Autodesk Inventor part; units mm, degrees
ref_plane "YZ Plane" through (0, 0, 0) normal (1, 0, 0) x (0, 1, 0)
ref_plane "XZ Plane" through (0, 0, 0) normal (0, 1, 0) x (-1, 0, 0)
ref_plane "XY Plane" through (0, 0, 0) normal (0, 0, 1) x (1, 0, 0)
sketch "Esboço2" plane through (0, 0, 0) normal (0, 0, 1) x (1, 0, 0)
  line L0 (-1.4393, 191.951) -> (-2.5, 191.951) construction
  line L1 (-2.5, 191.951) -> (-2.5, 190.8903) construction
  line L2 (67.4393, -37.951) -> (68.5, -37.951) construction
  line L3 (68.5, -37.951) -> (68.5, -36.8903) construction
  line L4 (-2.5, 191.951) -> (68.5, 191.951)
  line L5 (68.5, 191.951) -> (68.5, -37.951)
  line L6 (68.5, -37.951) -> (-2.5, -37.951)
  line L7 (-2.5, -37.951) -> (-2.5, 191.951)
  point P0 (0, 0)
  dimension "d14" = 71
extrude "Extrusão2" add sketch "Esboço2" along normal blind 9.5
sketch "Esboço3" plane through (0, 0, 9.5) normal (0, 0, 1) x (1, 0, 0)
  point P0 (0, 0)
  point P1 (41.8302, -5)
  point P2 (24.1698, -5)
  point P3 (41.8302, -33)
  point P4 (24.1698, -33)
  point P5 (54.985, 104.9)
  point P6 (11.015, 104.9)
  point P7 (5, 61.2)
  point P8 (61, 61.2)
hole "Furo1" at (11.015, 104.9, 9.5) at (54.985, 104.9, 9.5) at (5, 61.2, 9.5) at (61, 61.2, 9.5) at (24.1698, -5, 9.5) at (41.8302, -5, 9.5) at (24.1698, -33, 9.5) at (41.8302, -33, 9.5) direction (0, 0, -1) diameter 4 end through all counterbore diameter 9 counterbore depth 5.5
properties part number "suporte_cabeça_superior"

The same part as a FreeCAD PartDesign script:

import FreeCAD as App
import Part
import Sketcher
from FreeCAD import Vector


def add_polygon(sketch, points):
    """Adds a closed chain of lines whose ends are joined by coincident constraints."""
    first, n = sketch.GeometryCount, len(points)
    for a, b in zip(points, points[1:] + points[:1]):
        sketch.addGeometry(Part.LineSegment(App.Vector(*a, 0), App.Vector(*b, 0)), False)
    for i in range(n):
        sketch.addConstraint(Sketcher.Constraint("Coincident", first + i, 2, first + (i + 1) % n, 1))

doc = App.newDocument("Part")
body = doc.addObject("PartDesign::Body", "Body")

sketch1 = body.newObject("Sketcher::SketchObject", "Sketch")
sketch1.AttachmentSupport = (doc.getObject("XY_Plane"), [""])
sketch1.MapMode = "FlatFace"
add_polygon(sketch1, [(68.5, 191.951), (-2.5, 191.951), (-2.5, -37.951), (68.5, -37.951)])
sketch1.addConstraint(Sketcher.Constraint("Horizontal", 0))
sketch1.addConstraint(Sketcher.Constraint("Vertical", 1))
sketch1.addConstraint(Sketcher.Constraint("Horizontal", 2))
sketch1.addConstraint(Sketcher.Constraint("Vertical", 3))
sketch1.addConstraint(Sketcher.Constraint("DistanceX", 0, 2, 0, 1, 71.0))
sketch1.addConstraint(Sketcher.Constraint("DistanceX", 0, 2, -1, 1, 2.5))
sketch1.addConstraint(Sketcher.Constraint("DistanceY", 1, 2, 1, 1, 229.902))
sketch1.addConstraint(Sketcher.Constraint("DistanceY", -1, 1, 0, 2, 191.951))
pad1 = body.newObject("PartDesign::Pad", "Pad")
pad1.Profile = sketch1
pad1.Length = 9.5

sketch2 = body.newObject("Sketcher::SketchObject", "Sketch001")
sketch2.AttachmentSupport = (doc.getObject("XY_Plane"), [""])
sketch2.MapMode = "FlatFace"
sketch2.AttachmentOffset = App.Placement(Vector(0, 0, 9.5), App.Rotation())
sketch2.addGeometry(Part.Circle(Vector(11.015, 104.9, 0), Vector(0, 0, 1), 2), False)
sketch2.addGeometry(Part.Circle(Vector(54.985, 104.9, 0), Vector(0, 0, 1), 2), False)
sketch2.addGeometry(Part.Circle(Vector(5, 61.2, 0), Vector(0, 0, 1), 2), False)
sketch2.addGeometry(Part.Circle(Vector(61, 61.2, 0), Vector(0, 0, 1), 2), False)
sketch2.addGeometry(Part.Circle(Vector(24.1698, -5, 0), Vector(0, 0, 1), 2), False)
sketch2.addGeometry(Part.Circle(Vector(41.8302, -5, 0), Vector(0, 0, 1), 2), False)
sketch2.addGeometry(Part.Circle(Vector(24.1698, -33, 0), Vector(0, 0, 1), 2), False)
sketch2.addGeometry(Part.Circle(Vector(41.8302, -33, 0), Vector(0, 0, 1), 2), False)
sketch2.addConstraint(Sketcher.Constraint("Equal", 0, 1))
sketch2.addConstraint(Sketcher.Constraint("Equal", 1, 2))
sketch2.addConstraint(Sketcher.Constraint("Equal", 2, 3))
sketch2.addConstraint(Sketcher.Constraint("Equal", 3, 4))
sketch2.addConstraint(Sketcher.Constraint("Equal", 4, 5))
sketch2.addConstraint(Sketcher.Constraint("Equal", 5, 6))
sketch2.addConstraint(Sketcher.Constraint("Equal", 6, 7))
sketch2.addConstraint(Sketcher.Constraint("Horizontal", 0, 3, 1, 3))
sketch2.addConstraint(Sketcher.Constraint("Horizontal", 2, 3, 3, 3))
sketch2.addConstraint(Sketcher.Constraint("Horizontal", 4, 3, 5, 3))
sketch2.addConstraint(Sketcher.Constraint("Horizontal", 6, 3, 7, 3))
sketch2.addConstraint(Sketcher.Constraint("Vertical", 4, 3, 6, 3))
sketch2.addConstraint(Sketcher.Constraint("Vertical", 5, 3, 7, 3))
sketch2.addConstraint(Sketcher.Constraint("Diameter", 0, 4.0))
sketch2.addConstraint(Sketcher.Constraint("DistanceX", -1, 1, 2, 3, 5.0))
sketch2.addConstraint(Sketcher.Constraint("DistanceX", -1, 1, 3, 3, 61.0))
sketch2.addConstraint(Sketcher.Constraint("DistanceY", 4, 3, -1, 1, 5.0))
sketch2.addConstraint(Sketcher.Constraint("DistanceY", 6, 3, -1, 1, 33.0))
sketch2.addConstraint(Sketcher.Constraint("DistanceY", -1, 1, 0, 3, 104.9))
sketch2.addConstraint(Sketcher.Constraint("DistanceY", -1, 1, 2, 3, 61.2))
sketch2.addConstraint(Sketcher.Constraint("DistanceX", 0, 3, 1, 3, 43.97))
sketch2.addConstraint(Sketcher.Constraint("DistanceX", -1, 1, 0, 3, 11.015))
sketch2.addConstraint(Sketcher.Constraint("DistanceX", -1, 1, 4, 3, 24.1698))
sketch2.addConstraint(Sketcher.Constraint("DistanceX", -1, 1, 5, 3, 41.8302))
doc.recompute()
hole = body.newObject("PartDesign::Hole", "Hole")
hole.Profile = sketch2
hole.ThreadType = "None"
hole.Diameter = 4
hole.DepthType = "ThroughAll"
hole.HoleCutType = "Counterbore"
hole.HoleCutDiameter = 9
hole.HoleCutDepth = 5.5

doc.recompute()
